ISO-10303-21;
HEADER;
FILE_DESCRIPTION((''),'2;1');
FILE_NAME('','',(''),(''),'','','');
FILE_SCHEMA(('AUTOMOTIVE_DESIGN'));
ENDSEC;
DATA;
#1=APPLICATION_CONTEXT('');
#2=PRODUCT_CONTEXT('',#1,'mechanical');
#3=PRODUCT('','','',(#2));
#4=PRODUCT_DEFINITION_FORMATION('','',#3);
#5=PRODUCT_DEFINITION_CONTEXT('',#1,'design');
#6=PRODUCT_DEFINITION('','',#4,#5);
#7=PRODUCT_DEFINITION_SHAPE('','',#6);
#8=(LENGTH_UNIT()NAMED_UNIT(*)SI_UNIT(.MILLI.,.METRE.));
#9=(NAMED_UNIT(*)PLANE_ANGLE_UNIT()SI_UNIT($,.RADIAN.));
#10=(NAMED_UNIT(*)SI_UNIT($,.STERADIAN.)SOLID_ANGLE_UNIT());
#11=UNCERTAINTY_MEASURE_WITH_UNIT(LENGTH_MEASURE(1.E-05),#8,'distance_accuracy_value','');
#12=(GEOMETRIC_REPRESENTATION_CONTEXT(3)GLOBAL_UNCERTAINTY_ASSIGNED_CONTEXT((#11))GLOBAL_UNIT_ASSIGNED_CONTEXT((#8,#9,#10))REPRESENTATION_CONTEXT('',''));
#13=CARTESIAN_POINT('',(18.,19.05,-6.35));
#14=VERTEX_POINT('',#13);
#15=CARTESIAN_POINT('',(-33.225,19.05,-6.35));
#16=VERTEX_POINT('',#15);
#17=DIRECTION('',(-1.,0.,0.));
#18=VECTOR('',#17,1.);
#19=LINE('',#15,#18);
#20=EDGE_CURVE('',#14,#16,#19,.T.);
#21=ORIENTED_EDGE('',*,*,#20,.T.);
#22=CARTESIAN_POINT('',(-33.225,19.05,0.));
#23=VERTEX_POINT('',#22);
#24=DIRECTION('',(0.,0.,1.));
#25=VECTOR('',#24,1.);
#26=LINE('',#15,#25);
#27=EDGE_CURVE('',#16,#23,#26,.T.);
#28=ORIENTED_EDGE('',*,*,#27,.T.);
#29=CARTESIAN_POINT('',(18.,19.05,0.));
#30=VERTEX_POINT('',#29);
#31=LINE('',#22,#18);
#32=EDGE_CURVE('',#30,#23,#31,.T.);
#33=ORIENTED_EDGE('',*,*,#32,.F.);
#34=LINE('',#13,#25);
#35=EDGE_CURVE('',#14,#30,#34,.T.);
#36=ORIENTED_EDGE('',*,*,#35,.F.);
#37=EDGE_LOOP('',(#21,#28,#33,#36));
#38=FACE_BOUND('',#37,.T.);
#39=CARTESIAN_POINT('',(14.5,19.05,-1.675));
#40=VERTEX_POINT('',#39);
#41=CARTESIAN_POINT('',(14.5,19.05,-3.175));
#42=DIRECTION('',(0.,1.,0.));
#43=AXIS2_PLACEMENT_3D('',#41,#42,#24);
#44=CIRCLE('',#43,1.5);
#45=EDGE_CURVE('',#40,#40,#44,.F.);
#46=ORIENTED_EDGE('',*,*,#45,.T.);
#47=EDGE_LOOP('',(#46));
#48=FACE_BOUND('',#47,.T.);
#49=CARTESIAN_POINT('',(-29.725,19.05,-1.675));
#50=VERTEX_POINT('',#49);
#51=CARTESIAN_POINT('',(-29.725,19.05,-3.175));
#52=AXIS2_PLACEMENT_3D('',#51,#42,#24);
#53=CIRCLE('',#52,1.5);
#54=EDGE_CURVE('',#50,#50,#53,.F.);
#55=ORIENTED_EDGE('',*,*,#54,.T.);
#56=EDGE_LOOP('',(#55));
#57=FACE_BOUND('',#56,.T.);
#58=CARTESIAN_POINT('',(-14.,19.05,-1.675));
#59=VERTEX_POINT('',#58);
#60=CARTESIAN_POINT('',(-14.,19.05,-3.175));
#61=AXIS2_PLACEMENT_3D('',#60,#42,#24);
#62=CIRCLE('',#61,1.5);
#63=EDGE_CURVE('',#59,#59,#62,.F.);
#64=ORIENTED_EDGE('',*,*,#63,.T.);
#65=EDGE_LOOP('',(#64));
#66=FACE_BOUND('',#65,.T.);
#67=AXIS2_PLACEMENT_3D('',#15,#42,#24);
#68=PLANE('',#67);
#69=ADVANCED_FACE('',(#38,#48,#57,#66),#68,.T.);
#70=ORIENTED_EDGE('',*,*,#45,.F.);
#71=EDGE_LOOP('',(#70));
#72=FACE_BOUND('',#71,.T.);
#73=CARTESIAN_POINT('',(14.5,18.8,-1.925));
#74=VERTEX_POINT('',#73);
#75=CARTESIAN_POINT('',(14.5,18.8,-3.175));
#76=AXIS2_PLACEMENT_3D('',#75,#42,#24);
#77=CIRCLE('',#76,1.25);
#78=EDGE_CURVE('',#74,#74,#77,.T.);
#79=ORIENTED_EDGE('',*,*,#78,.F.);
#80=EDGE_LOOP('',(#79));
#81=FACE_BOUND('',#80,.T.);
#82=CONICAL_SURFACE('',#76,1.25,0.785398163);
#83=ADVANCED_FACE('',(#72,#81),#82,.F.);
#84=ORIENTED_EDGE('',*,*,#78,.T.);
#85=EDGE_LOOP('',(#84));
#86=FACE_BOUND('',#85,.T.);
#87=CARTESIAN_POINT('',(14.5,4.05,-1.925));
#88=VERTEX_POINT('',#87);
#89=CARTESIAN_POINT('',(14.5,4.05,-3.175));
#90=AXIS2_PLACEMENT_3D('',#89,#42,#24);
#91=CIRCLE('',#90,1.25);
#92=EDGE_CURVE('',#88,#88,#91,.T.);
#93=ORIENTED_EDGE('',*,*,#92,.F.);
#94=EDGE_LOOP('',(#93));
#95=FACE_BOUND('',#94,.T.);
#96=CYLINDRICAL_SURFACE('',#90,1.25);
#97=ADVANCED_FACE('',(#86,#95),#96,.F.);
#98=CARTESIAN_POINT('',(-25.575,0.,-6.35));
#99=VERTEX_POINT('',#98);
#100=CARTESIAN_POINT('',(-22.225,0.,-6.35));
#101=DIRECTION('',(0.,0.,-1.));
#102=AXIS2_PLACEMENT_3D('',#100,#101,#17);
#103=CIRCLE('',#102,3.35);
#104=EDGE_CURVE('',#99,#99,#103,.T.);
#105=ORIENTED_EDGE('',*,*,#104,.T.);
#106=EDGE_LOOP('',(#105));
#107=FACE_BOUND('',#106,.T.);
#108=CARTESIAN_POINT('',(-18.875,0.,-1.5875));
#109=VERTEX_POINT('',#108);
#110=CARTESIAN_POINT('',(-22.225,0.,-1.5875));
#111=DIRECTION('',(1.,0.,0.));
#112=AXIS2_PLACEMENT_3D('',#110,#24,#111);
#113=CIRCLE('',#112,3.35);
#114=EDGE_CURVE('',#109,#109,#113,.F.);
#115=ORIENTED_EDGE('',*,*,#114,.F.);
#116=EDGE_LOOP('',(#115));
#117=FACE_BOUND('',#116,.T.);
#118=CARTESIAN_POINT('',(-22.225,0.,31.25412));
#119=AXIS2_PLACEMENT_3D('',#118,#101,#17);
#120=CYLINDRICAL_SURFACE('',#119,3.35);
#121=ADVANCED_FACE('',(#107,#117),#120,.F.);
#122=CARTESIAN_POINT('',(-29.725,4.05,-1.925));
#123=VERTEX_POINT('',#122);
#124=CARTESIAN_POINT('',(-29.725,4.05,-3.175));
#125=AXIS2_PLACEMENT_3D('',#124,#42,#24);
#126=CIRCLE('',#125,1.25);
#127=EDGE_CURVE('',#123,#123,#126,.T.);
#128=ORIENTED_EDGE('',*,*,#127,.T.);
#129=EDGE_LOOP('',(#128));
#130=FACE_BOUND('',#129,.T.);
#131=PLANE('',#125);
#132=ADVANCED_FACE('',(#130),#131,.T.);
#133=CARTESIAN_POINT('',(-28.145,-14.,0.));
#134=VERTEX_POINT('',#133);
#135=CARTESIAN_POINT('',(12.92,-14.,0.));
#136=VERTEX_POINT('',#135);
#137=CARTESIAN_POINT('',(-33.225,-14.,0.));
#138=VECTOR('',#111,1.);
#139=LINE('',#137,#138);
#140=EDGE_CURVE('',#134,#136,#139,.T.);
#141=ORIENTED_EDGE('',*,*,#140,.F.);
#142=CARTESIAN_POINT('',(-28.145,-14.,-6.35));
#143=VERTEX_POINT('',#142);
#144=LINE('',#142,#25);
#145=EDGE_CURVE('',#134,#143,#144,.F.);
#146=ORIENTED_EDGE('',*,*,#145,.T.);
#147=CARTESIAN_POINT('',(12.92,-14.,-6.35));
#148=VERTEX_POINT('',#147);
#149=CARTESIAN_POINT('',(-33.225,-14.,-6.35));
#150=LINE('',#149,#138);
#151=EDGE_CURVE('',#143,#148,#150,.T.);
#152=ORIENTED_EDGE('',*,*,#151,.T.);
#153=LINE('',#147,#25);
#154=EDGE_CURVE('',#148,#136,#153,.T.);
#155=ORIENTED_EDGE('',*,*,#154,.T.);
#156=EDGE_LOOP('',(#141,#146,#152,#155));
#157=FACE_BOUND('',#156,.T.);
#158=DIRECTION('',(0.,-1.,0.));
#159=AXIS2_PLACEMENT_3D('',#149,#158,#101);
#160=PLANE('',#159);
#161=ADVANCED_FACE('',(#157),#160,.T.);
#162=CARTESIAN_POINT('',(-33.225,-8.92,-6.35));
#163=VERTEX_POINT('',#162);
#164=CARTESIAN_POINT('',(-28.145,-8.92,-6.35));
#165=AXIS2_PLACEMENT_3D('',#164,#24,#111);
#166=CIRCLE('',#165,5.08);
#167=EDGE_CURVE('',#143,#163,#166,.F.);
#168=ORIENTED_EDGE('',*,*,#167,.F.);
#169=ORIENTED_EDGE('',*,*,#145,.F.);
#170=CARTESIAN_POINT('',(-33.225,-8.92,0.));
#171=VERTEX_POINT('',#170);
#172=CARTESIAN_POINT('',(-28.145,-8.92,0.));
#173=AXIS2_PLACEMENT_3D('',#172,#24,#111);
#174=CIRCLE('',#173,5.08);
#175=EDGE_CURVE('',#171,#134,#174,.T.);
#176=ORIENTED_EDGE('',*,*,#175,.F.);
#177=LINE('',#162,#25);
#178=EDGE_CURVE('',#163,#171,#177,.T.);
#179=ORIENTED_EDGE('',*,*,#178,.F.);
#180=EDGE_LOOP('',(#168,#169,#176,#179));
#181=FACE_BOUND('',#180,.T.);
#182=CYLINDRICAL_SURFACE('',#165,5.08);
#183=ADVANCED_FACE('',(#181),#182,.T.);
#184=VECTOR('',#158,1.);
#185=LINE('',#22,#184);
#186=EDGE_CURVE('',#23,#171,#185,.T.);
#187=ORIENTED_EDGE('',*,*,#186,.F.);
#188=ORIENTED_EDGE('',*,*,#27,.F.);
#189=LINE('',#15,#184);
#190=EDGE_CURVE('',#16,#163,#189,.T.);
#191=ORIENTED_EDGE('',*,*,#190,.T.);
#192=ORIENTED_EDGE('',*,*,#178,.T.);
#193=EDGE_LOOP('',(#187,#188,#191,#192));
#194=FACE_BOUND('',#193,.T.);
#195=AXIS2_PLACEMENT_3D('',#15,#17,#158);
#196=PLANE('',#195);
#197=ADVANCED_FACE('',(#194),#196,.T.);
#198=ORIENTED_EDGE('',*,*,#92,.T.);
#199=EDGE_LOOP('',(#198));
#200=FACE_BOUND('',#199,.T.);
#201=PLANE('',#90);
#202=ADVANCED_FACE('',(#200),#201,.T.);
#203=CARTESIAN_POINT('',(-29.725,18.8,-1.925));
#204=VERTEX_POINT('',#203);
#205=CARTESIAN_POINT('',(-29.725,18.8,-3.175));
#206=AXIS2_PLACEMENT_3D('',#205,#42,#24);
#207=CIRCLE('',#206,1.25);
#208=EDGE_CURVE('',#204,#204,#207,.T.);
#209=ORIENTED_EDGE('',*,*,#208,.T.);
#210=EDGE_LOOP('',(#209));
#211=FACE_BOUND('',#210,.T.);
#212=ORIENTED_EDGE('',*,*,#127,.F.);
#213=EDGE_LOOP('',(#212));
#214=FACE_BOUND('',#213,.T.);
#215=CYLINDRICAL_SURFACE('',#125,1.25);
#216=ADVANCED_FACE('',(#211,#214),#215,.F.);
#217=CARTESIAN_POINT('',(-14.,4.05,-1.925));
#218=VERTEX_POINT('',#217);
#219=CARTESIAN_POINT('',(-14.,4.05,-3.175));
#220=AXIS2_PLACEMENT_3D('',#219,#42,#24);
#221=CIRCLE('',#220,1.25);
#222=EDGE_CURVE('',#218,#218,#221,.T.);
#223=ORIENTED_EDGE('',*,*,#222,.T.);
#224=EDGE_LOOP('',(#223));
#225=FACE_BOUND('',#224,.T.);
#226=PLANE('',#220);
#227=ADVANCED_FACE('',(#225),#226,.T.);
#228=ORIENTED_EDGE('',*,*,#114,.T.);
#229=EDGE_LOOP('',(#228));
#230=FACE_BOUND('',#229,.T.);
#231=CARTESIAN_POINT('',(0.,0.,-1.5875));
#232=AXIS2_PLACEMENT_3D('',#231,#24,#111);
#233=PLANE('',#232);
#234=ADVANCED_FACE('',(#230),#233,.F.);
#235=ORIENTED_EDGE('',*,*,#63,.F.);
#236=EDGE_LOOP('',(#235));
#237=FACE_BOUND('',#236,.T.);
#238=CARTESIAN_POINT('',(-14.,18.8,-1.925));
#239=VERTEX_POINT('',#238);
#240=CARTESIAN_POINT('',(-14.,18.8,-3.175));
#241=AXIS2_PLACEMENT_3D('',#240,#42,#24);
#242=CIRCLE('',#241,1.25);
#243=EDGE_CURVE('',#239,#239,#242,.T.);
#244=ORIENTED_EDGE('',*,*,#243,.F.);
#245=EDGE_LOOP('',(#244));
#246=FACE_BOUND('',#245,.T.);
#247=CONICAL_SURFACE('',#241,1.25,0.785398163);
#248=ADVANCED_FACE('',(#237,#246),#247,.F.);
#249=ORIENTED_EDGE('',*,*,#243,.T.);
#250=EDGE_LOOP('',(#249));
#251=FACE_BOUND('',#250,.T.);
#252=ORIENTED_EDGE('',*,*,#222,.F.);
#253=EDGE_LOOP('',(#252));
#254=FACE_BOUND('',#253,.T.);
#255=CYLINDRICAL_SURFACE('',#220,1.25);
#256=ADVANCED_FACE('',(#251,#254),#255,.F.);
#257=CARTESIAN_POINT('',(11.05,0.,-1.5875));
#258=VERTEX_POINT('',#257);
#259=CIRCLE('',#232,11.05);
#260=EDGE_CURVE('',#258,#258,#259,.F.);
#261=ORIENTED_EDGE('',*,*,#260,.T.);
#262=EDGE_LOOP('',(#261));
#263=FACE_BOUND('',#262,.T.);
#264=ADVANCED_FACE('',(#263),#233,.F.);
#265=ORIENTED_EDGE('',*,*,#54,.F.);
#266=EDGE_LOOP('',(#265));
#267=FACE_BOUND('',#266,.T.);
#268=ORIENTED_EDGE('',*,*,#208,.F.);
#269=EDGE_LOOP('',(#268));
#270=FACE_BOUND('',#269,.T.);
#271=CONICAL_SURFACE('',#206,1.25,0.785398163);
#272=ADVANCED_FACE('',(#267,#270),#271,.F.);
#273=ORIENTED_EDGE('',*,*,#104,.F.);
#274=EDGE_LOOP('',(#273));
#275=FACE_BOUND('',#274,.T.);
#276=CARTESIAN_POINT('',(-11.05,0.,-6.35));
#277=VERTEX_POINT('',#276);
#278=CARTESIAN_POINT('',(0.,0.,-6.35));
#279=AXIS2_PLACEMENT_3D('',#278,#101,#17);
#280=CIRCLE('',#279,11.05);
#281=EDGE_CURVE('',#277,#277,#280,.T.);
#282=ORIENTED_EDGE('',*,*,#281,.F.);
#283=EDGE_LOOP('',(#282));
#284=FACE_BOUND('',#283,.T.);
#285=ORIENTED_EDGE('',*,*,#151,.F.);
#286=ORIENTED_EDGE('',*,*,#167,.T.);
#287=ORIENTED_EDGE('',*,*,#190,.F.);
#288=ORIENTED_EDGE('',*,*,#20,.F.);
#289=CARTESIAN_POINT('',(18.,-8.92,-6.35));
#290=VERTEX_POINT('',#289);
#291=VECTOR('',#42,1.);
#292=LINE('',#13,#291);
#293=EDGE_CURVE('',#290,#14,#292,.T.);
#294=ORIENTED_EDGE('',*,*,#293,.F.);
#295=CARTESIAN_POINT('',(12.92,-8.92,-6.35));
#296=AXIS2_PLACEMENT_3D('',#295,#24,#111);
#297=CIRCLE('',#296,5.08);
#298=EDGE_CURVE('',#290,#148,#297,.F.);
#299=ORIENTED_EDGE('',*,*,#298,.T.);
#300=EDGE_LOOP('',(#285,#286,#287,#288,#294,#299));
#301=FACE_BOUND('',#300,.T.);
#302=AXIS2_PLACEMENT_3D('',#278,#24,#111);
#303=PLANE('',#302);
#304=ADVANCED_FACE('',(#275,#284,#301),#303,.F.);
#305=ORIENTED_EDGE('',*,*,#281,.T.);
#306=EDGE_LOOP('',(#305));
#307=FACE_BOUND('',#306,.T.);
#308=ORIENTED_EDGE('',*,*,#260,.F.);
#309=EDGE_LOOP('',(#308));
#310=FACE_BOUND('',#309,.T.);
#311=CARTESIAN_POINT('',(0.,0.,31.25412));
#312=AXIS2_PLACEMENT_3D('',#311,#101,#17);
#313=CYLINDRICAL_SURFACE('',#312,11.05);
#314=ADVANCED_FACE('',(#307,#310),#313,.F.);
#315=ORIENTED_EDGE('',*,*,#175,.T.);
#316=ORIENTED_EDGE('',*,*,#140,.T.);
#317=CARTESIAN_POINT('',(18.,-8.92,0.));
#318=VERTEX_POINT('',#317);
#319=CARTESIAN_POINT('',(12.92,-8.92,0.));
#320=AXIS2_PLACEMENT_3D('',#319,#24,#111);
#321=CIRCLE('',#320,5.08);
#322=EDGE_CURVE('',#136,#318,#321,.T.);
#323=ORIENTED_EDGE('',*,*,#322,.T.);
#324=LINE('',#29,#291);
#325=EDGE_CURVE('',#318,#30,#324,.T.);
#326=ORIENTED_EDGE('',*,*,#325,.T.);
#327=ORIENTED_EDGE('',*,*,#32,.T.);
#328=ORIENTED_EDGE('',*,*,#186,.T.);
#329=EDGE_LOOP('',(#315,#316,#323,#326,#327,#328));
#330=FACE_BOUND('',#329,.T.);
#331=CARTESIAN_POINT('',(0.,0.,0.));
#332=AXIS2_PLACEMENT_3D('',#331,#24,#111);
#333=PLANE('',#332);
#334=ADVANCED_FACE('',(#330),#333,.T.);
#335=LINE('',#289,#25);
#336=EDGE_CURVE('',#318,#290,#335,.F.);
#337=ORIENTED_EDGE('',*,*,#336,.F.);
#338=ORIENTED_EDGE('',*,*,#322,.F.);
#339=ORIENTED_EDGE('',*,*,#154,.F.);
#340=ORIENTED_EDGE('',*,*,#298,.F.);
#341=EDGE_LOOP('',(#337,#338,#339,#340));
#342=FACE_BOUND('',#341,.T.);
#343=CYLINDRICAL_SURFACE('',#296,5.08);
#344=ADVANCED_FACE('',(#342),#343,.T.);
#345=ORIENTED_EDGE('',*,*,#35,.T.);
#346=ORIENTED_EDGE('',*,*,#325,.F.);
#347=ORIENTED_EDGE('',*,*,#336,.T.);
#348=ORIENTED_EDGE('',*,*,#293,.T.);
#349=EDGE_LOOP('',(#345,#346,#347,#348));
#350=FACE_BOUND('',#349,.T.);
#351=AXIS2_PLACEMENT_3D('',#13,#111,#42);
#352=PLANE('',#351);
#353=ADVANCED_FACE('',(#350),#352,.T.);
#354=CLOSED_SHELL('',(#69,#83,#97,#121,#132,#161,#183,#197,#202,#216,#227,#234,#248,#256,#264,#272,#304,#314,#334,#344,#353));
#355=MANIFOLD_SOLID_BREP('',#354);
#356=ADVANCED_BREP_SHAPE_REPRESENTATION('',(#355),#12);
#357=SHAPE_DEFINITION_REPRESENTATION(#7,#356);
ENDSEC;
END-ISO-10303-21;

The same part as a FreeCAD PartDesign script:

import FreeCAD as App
import Part
import Sketcher

V = App.Vector


def edges_at(feature, points):
    """Names of the edges that pass closest to the given points."""
    edges = feature.Shape.Edges
    near = lambda p: min(range(len(edges)), key=lambda i: edges[i].distToShape(Part.Vertex(*p))[0])
    return sorted({f"Edge{near(p) + 1}" for p in points})

doc = App.newDocument("Part")
body = doc.addObject("PartDesign::Body", "Body")

# Sketch on XY plane
sketch1 = doc.addObject("Sketcher::SketchObject", "Sketch")
body.addObject(sketch1)
sketch1.AttachmentSupport = (doc.XY_Plane, [""])
sketch1.MapMode = "FlatFace"
sketch1.addGeometry([
    Part.LineSegment(V(-33.225, 19.05, 0), V(-33.225, -14, 0)),
    Part.LineSegment(V(-33.225, -14, 0), V(18, -14, 0)),
    Part.LineSegment(V(18, -14, 0), V(18, 19.05, 0)),
    Part.LineSegment(V(18, 19.05, 0), V(-33.225, 19.05, 0)),
], False)
sketch1.addConstraint([
    Sketcher.Constraint("Coincident", 0, 2, 1, 1),
    Sketcher.Constraint("Coincident", 1, 2, 2, 1),
    Sketcher.Constraint("Coincident", 2, 2, 3, 1),
    Sketcher.Constraint("Coincident", 3, 2, 0, 1),
    Sketcher.Constraint("Vertical", 0),
    Sketcher.Constraint("Horizontal", 1),
    Sketcher.Constraint("Vertical", 2),
    Sketcher.Constraint("Horizontal", 3),
    Sketcher.Constraint("DistanceY", 0, 2, -1, 1, 14.0),
    Sketcher.Constraint("DistanceX", -1, 1, 1, 2, 18.0),
    Sketcher.Constraint("DistanceY", 0, 2, 0, 1, 33.05),
    Sketcher.Constraint("DistanceX", 1, 1, 1, 2, 51.225),
])
pad1 = doc.addObject("PartDesign::Pad", "Pad")
body.addObject(pad1)
pad1.Profile = sketch1
pad1.Length = 6.35
pad1.Reversed = True

# Sketch on XZ plane
sketch2 = doc.addObject("Sketcher::SketchObject", "Sketch001")
body.addObject(sketch2)
sketch2.AttachmentSupport = (doc.XZ_Plane, [""])
sketch2.MapMode = "FlatFace"
sketch2.AttachmentOffset = App.Placement(V(0, 0, -19.05), App.Rotation())
sketch2.addGeometry([
    Part.Circle(V(-29.725, -3.175, 0), V(0, 0, 1), 1.25),
    Part.Circle(V(-14, -3.175, 0), V(0, 0, 1), 1.25),
    Part.Circle(V(14.5, -3.175, 0), V(0, 0, 1), 1.25),
], False)
sketch2.addConstraint([
    Sketcher.Constraint("Equal", 0, 1),
    Sketcher.Constraint("Equal", 1, 2),
    Sketcher.Constraint("Horizontal", 0, 3, 1, 3),
    Sketcher.Constraint("Horizontal", 1, 3, 2, 3),
    Sketcher.Constraint("Diameter", 0, 2.5),
    Sketcher.Constraint("DistanceX", 1, 3, -1, 1, 14.0),
    Sketcher.Constraint("DistanceX", -1, 1, 2, 3, 14.5),
    Sketcher.Constraint("DistanceX", 0, 3, -1, 1, 29.725),
    Sketcher.Constraint("DistanceY", 0, 3, -1, 1, 3.175),
])
pocket1 = doc.addObject("PartDesign::Pocket", "Pocket")
body.addObject(pocket1)
pocket1.Profile = sketch2
pocket1.Length = 15
pocket1.Reversed = True
doc.recompute()

fillet = doc.addObject("PartDesign::Fillet", "Fillet")
body.addObject(fillet)
fillet.Base = (pocket1, edges_at(pocket1, [(18, -14, -3.175), (-33.225, -14, -3.175)]))
fillet.Radius = 5.08

# Sketch on XY plane
sketch3 = doc.addObject("Sketcher::SketchObject", "Sketch002")
body.addObject(sketch3)
sketch3.AttachmentSupport = (doc.XY_Plane, [""])
sketch3.MapMode = "FlatFace"
sketch3.AttachmentOffset = App.Placement(V(0, 0, -6.35), App.Rotation())
sketch3.addGeometry([
    Part.Circle(V(-22.225, 0, 0), V(0, 0, 1), 3.35),
    Part.Circle(V(0, 0, 0), V(0, 0, 1), 11.05),
], False)
sketch3.addConstraint([
    Sketcher.Constraint("Coincident", 1, 3, -1, 1),
    Sketcher.Constraint("PointOnObject", 0, 3, -1),
    Sketcher.Constraint("Diameter", 0, 6.7),
    Sketcher.Constraint("Diameter", 1, 22.1),
    Sketcher.Constraint("DistanceX", 0, 3, -1, 1, 22.225),
])
pocket2 = doc.addObject("PartDesign::Pocket", "Pocket001")
body.addObject(pocket2)
pocket2.Profile = sketch3
pocket2.Length = 4.7625
pocket2.Reversed = True
doc.recompute()

chamfer = doc.addObject("PartDesign::Chamfer", "Chamfer")
body.addObject(chamfer)
chamfer.Base = (pocket2, edges_at(pocket2, [(-29.725, 19.05, -4.425), (-14, 19.05, -4.425), (14.5, 19.05, -4.425)]))
chamfer.Size = 0.25

doc.recompute()
